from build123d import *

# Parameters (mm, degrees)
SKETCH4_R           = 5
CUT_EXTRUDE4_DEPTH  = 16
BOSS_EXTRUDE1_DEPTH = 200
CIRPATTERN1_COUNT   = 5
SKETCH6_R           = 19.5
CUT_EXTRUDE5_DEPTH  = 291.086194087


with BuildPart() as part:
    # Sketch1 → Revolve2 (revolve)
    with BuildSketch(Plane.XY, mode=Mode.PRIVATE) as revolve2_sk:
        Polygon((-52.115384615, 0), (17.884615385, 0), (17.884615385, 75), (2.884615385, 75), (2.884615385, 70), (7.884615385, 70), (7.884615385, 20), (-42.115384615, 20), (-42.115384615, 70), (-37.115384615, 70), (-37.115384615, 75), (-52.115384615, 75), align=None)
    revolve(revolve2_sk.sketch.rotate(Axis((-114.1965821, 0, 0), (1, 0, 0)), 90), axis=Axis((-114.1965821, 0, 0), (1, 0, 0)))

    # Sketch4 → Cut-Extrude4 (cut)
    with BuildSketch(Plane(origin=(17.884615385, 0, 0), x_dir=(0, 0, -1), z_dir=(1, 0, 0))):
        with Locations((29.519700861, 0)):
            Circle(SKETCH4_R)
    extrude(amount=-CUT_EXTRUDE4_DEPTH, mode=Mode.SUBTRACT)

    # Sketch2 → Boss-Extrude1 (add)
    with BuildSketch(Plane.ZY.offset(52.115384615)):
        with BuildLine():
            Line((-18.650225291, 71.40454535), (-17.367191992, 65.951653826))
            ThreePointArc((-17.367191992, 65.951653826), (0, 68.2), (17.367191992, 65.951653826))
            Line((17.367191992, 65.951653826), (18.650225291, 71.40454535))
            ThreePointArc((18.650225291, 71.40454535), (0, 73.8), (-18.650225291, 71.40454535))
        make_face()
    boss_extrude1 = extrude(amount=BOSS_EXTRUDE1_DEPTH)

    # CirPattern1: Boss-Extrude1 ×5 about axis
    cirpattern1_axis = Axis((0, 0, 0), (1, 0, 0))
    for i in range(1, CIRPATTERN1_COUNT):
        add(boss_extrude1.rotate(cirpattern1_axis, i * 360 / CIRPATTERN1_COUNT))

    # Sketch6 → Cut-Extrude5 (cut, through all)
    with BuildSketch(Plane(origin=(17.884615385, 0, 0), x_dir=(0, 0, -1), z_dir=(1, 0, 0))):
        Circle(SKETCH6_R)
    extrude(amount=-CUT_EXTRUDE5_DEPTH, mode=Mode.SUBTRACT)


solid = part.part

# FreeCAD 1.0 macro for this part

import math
import FreeCAD as App
import Part
import Sketcher
from FreeCAD import Vector

doc = App.newDocument("Part")
body = doc.addObject("PartDesign::Body", "Body")

# Sketch on XY plane
sketch1 = doc.addObject("Sketcher::SketchObject", "Sketch")
body.addObject(sketch1)
sketch1.AttachmentSupport = (doc.XY_Plane, [""])
sketch1.MapMode = "FlatFace"
sketch1.addGeometry(Part.LineSegment(Vector(-52.115385, 0, 0), Vector(17.884615, 0, 0)), False)
sketch1.addGeometry(Part.LineSegment(Vector(17.884615, 0, 0), Vector(17.884615, 75, 0)), False)
sketch1.addGeometry(Part.LineSegment(Vector(17.884615, 75, 0), Vector(2.884615, 75, 0)), False)
sketch1.addGeometry(Part.LineSegment(Vector(2.884615, 75, 0), Vector(2.884615, 70, 0)), False)
sketch1.addGeometry(Part.LineSegment(Vector(2.884615, 70, 0), Vector(7.884615, 70, 0)), False)
sketch1.addGeometry(Part.LineSegment(Vector(7.884615, 70, 0), Vector(7.884615, 20, 0)), False)
sketch1.addGeometry(Part.LineSegment(Vector(7.884615, 20, 0), Vector(-42.115385, 20, 0)), False)
sketch1.addGeometry(Part.LineSegment(Vector(-42.115385, 20, 0), Vector(-42.115385, 70, 0)), False)
sketch1.addGeometry(Part.LineSegment(Vector(-42.115385, 70, 0), Vector(-37.115385, 70, 0)), False)
sketch1.addGeometry(Part.LineSegment(Vector(-37.115385, 70, 0), Vector(-37.115385, 75, 0)), False)
sketch1.addGeometry(Part.LineSegment(Vector(-37.115385, 75, 0), Vector(-52.115385, 75, 0)), False)
sketch1.addGeometry(Part.LineSegment(Vector(-52.115385, 75, 0), Vector(-52.115385, 0, 0)), False)
sketch1.addConstraint(Sketcher.Constraint("Coincident", 0, 2, 1, 1))
sketch1.addConstraint(Sketcher.Constraint("Coincident", 1, 2, 2, 1))
sketch1.addConstraint(Sketcher.Constraint("Coincident", 2, 2, 3, 1))
sketch1.addConstraint(Sketcher.Constraint("Coincident", 3, 2, 4, 1))
sketch1.addConstraint(Sketcher.Constraint("Coincident", 4, 2, 5, 1))
sketch1.addConstraint(Sketcher.Constraint("Coincident", 5, 2, 6, 1))
sketch1.addConstraint(Sketcher.Constraint("Coincident", 6, 2, 7, 1))
sketch1.addConstraint(Sketcher.Constraint("Coincident", 7, 2, 8, 1))
sketch1.addConstraint(Sketcher.Constraint("Coincident", 8, 2, 9, 1))
sketch1.addConstraint(Sketcher.Constraint("Coincident", 9, 2, 10, 1))
sketch1.addConstraint(Sketcher.Constraint("Coincident", 10, 2, 11, 1))
sketch1.addConstraint(Sketcher.Constraint("Coincident", 11, 2, 0, 1))
sketch1.addConstraint(Sketcher.Constraint("Horizontal", 0))
sketch1.addConstraint(Sketcher.Constraint("Vertical", 1))
sketch1.addConstraint(Sketcher.Constraint("Horizontal", 2))
sketch1.addConstraint(Sketcher.Constraint("Vertical", 3))
sketch1.addConstraint(Sketcher.Constraint("Horizontal", 4))
sketch1.addConstraint(Sketcher.Constraint("Vertical", 5))
sketch1.addConstraint(Sketcher.Constraint("Horizontal", 6))
sketch1.addConstraint(Sketcher.Constraint("Vertical", 7))
sketch1.addConstraint(Sketcher.Constraint("Horizontal", 8))
sketch1.addConstraint(Sketcher.Constraint("Vertical", 9))
sketch1.addConstraint(Sketcher.Constraint("Horizontal", 10))
sketch1.addConstraint(Sketcher.Constraint("Vertical", 11))
sketch1.addConstraint(Sketcher.Constraint("PointOnObject", 0, 2, -1))
sketch1.addConstraint(Sketcher.Constraint("Horizontal", 4, 2, 7, 2))
sketch1.addConstraint(Sketcher.Constraint("Horizontal", 2, 2, 9, 2))
sketch1.addConstraint(Sketcher.Constraint("Equal", 4, 8))
sketch1.addConstraint(Sketcher.Constraint("Equal", 2, 10))
sketch1.addConstraint(Sketcher.Constraint("Equal", 8, 3))
sketch1.addConstraint(Sketcher.Constraint("Equal", 6, 5))
sketch1.addConstraint(Sketcher.Constraint("DistanceX", 0, 1, 0, 2, 70.0))
sketch1.addConstraint(Sketcher.Constraint("DistanceX", 2, 2, 2, 1, 15.0))
sketch1.addConstraint(Sketcher.Constraint("DistanceX", 4, 1, 4, 2, 5.0))
sketch1.addConstraint(Sketcher.Constraint("DistanceY", 1, 1, 1, 2, 75.0))
sketch1.addConstraint(Sketcher.Constraint("DistanceX", -1, 1, 0, 2, 17.884615))
revolution = doc.addObject("PartDesign::Revolution", "Revolution")
body.addObject(revolution)
revolution.Profile = sketch1
revolution.ReferenceAxis = (sketch1, ["H_Axis"])
revolution.Angle = 360

# Sketch on YZ plane
sketch2 = doc.addObject("Sketcher::SketchObject", "Sketch001")
body.addObject(sketch2)
sketch2.AttachmentSupport = (doc.YZ_Plane, [""])
sketch2.MapMode = "FlatFace"
sketch2.AttachmentOffset = App.Placement(Vector(0, 0, 17.884615), App.Rotation())
sketch2.addGeometry(Part.Circle(Vector(0, -29.519701, 0), Vector(0, 0, 1), 5), False)
sketch2.addConstraint(Sketcher.Constraint("PointOnObject", 0, 3, -2))
sketch2.addConstraint(Sketcher.Constraint("Diameter", 0, 10.0))
sketch2.addConstraint(Sketcher.Constraint("DistanceY", 0, 3, -1, 1, 29.519701))
pocket1 = doc.addObject("PartDesign::Pocket", "Pocket")
body.addObject(pocket1)
pocket1.Profile = sketch2
pocket1.Length = 16

# Sketch on YZ plane
sketch3 = doc.addObject("Sketcher::SketchObject", "Sketch002")
body.addObject(sketch3)
sketch3.AttachmentSupport = (doc.YZ_Plane, [""])
sketch3.MapMode = "FlatFace"
sketch3.AttachmentOffset = App.Placement(Vector(0, 0, -52.115385), App.Rotation())
sketch3.addGeometry(Part.LineSegment(Vector(71.404545, -18.650225, 0), Vector(65.951654, -17.367192, 0)), False)
sketch3.addGeometry(Part.ArcOfCircle(Part.Circle(Vector(0, 0, 0), Vector(0, 0, 1), 68.2), math.radians(-14.752901), math.radians(14.752901)), False)
sketch3.addGeometry(Part.LineSegment(Vector(65.951654, 17.367192, 0), Vector(71.404545, 18.650225, 0)), False)
sketch3.addGeometry(Part.ArcOfCircle(Part.Circle(Vector(0, 0, 0), Vector(0, 0, 1), 73.8), math.radians(-14.638117), math.radians(14.638117)), False)
sketch3.addConstraint(Sketcher.Constraint("Coincident", 0, 2, 1, 1))
sketch3.addConstraint(Sketcher.Constraint("Coincident", 1, 2, 2, 1))
sketch3.addConstraint(Sketcher.Constraint("Coincident", 2, 2, 3, 2))
sketch3.addConstraint(Sketcher.Constraint("Coincident", 3, 1, 0, 1))
sketch3.addConstraint(Sketcher.Constraint("Coincident", 1, 3, -1, 1))
sketch3.addConstraint(Sketcher.Constraint("Coincident", 3, 3, -1, 1))
sketch3.addConstraint(Sketcher.Constraint("Vertical", 0, 2, 1, 2))
sketch3.addConstraint(Sketcher.Constraint("Vertical", 2, 2, 3, 1))
sketch3.addConstraint(Sketcher.Constraint("Radius", 1, 68.2))
sketch3.addConstraint(Sketcher.Constraint("Radius", 3, 73.8))
sketch3.addConstraint(Sketcher.Constraint("DistanceY", 0, 2, -1, 1, 17.367192))
sketch3.addConstraint(Sketcher.Constraint("DistanceX", 1, 2, 2, 2, 5.452892))
pad1 = doc.addObject("PartDesign::Pad", "Pad")
body.addObject(pad1)
pad1.Profile = sketch3
pad1.Length = 200
pad1.Reversed = True
doc.recompute()

polarpattern = doc.addObject("PartDesign::PolarPattern", "PolarPattern")
body.addObject(polarpattern)
polarpattern.Originals = [pad1]
polarpattern.Axis = (doc.X_Axis, [""])
polarpattern.Angle = 360
polarpattern.Occurrences = 5
body.Tip = polarpattern

# Sketch on YZ plane
sketch4 = doc.addObject("Sketcher::SketchObject", "Sketch003")
body.addObject(sketch4)
sketch4.AttachmentSupport = (doc.YZ_Plane, [""])
sketch4.MapMode = "FlatFace"
sketch4.AttachmentOffset = App.Placement(Vector(0, 0, 17.884615), App.Rotation())
sketch4.addGeometry(Part.Circle(Vector(0, 0, 0), Vector(0, 0, 1), 19.5), False)
sketch4.addConstraint(Sketcher.Constraint("Coincident", 0, 3, -1, 1))
sketch4.addConstraint(Sketcher.Constraint("Diameter", 0, 39.0))
pocket2 = doc.addObject("PartDesign::Pocket", "Pocket001")
body.addObject(pocket2)
pocket2.Profile = sketch4
pocket2.Type = "ThroughAll"

doc.recompute()
